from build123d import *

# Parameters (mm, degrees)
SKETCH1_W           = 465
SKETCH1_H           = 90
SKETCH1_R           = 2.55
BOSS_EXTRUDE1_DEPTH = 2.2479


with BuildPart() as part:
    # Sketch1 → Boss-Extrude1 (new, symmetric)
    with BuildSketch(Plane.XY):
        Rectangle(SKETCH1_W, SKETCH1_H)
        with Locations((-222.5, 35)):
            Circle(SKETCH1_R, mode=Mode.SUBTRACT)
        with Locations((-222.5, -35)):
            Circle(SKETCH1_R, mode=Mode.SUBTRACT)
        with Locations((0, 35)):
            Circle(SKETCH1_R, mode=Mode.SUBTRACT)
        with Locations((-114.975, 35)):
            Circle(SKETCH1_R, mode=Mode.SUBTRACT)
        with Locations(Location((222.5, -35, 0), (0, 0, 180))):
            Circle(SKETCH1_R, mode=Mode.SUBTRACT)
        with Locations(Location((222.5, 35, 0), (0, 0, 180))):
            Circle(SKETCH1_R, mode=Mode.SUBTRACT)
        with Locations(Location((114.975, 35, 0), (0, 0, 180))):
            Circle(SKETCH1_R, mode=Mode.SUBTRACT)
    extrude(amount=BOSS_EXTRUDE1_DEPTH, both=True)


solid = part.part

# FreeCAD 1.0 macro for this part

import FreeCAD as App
import Part
import Sketcher

V = App.Vector


def add_polygon(sketch, points):
    """Adds a closed chain of lines whose ends are joined by coincident constraints."""
    first, n = sketch.GeometryCount, len(points)
    for a, b in zip(points, points[1:] + points[:1]):
        sketch.addGeometry(Part.LineSegment(App.Vector(*a, 0), App.Vector(*b, 0)), False)
    for i in range(n):
        sketch.addConstraint(Sketcher.Constraint("Coincident", first + i, 2, first + (i + 1) % n, 1))

doc = App.newDocument("Part")
body = doc.addObject("PartDesign::Body", "Body")

sketch1 = body.newObject("Sketcher::SketchObject", "Sketch")
sketch1.AttachmentSupport = (doc.getObject("XY_Plane"), [""])
sketch1.MapMode = "FlatFace"
add_polygon(sketch1, [(-232.5, 45), (-232.5, -45), (232.5, -45), (232.5, 45)])
sketch1.addGeometry(Part.Circle(V(-222.5, -35, 0), V(0, 0, 1), 2.5), False)
sketch1.addGeometry(Part.Circle(V(222.5, -35, 0), V(0, 0, 1), 2.5), False)
sketch1.addGeometry(Part.Circle(V(-222.5, 35, 0), V(0, 0, 1), 2.5), False)
sketch1.addGeometry(Part.Circle(V(-115, 35, 0), V(0, 0, 1), 2.5), False)
sketch1.addGeometry(Part.Circle(V(0, 35, 0), V(0, 0, 1), 2.5), False)
sketch1.addGeometry(Part.Circle(V(115, 35, 0), V(0, 0, 1), 2.5), False)
sketch1.addGeometry(Part.Circle(V(222.5, 35, 0), V(0, 0, 1), 2.5), False)
sketch1.addConstraint([
    Sketcher.Constraint("Vertical", 0),
    Sketcher.Constraint("Horizontal", 1),
    Sketcher.Constraint("Vertical", 2),
    Sketcher.Constraint("Horizontal", 3),
    Sketcher.Constraint("Equal", 4, 5),
    Sketcher.Constraint("Equal", 5, 6),
    Sketcher.Constraint("Equal", 6, 7),
    Sketcher.Constraint("Equal", 7, 8),
    Sketcher.Constraint("Equal", 8, 9),
    Sketcher.Constraint("Equal", 9, 10),
    Sketcher.Constraint("Symmetric", 5, 3, 6, 3, -1, 1),
    Sketcher.Constraint("Symmetric", 4, 3, 10, 3, -1, 1),
    Sketcher.Constraint("Symmetric", 0, 2, 2, 2, -1, 1),
    Sketcher.Constraint("Symmetric", 4, 3, 5, 3, -2),
    Sketcher.Constraint("Symmetric", 7, 3, 9, 3, -2),
    Sketcher.Constraint("PointOnObject", 8, 3, -2),
    Sketcher.Constraint("Horizontal", 6, 3, 7, 3),
    Sketcher.Constraint("Horizontal", 7, 3, 8, 3),
    Sketcher.Constraint("Diameter", 4, 5.1),
    Sketcher.Constraint("DistanceX", 1, 1, 1, 2, 465.0),
    Sketcher.Constraint("DistanceY", 0, 2, 0, 1, 90.0),
    Sketcher.Constraint("DistanceY", 4, 3, -1, 1, 35.0),
    Sketcher.Constraint("DistanceX", 4, 3, 5, 3, 445.0),
    Sketcher.Constraint("DistanceX", 7, 3, 9, 3, 229.95),
])
pad1 = body.newObject("PartDesign::Pad", "Pad")
pad1.Profile = sketch1
pad1.Length = 4.4958
pad1.Midplane = True

doc.recompute()
